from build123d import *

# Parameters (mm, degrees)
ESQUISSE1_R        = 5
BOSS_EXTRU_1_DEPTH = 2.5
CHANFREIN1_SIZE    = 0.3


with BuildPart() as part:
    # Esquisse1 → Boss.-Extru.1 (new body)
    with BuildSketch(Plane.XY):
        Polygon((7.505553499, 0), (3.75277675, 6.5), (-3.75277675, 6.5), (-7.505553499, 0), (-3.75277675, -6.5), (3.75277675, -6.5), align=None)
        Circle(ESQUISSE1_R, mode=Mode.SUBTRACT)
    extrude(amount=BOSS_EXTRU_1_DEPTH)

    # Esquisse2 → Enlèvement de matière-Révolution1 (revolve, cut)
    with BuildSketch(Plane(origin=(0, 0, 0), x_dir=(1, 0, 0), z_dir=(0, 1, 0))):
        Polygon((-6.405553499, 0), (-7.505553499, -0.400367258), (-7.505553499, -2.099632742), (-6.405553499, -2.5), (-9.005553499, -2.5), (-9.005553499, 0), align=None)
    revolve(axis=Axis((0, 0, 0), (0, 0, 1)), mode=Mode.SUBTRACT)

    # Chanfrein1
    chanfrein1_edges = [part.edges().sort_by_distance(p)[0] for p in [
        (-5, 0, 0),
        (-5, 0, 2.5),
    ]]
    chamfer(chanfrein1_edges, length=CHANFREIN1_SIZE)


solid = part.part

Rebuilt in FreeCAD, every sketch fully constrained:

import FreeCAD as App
import Part
import Sketcher
Q = App.Units.Quantity


def edges_at(feature, points):
    """Names of the edges that pass closest to the given points."""
    edges = feature.Shape.Edges
    near = lambda p: min(range(len(edges)), key=lambda i: edges[i].distToShape(Part.Vertex(*p))[0])
    return sorted({f"Edge{near(p) + 1}" for p in points})


def add_polygon(sketch, points):
    """Adds a closed chain of lines whose ends are joined by coincident constraints."""
    first, n = sketch.GeometryCount, len(points)
    for a, b in zip(points, points[1:] + points[:1]):
        sketch.addGeometry(Part.LineSegment(App.Vector(*a, 0), App.Vector(*b, 0)), False)
    for i in range(n):
        sketch.addConstraint(Sketcher.Constraint("Coincident", first + i, 2, first + (i + 1) % n, 1))

doc = App.newDocument("Part")
body = doc.addObject("PartDesign::Body", "Body")

# Sketch on XY plane
sketch1 = body.newObject("Sketcher::SketchObject", "Sketch")
sketch1.AttachmentSupport = (doc.getObject("XY_Plane"), [""])
sketch1.MapMode = "FlatFace"
add_polygon(sketch1, [(7.505553, 0), (3.752777, 6.5), (-3.752777, 6.5), (-7.505553, 0), (-3.752777, -6.5), (3.752777, -6.5)])  # lines 0-5
sketch1.addGeometry(Part.Circle(App.Vector(0, 0, 0), App.Vector(0, 0, 1), 5), False)  # 6
sketch1.addConstraint([
    Sketcher.Constraint("Horizontal", 1),
    Sketcher.Constraint("Horizontal", 4),
    Sketcher.Constraint("Coincident", 6, 3, -1, 1),
    Sketcher.Constraint("Symmetric", 0, 2, 3, 2, -1, 1),
    Sketcher.Constraint("Symmetric", 2, 2, 5, 2, -1, 1),
    Sketcher.Constraint("PointOnObject", 2, 2, -1),
    Sketcher.Constraint("Parallel", 2, 5),
    Sketcher.Constraint("Vertical", 1, 2, 3, 2),
    Sketcher.Constraint("Diameter", 6, Q("10 mm")),
    Sketcher.Constraint("Angle", 0, Q("120 deg")),
    Sketcher.Constraint("DistanceY", 3, 2, 1, 2, Q("13 mm")),
    Sketcher.Constraint("DistanceX", 1, 2, 1, 1, Q("7.505554 mm")),
])
pad1 = body.newObject("PartDesign::Pad", "Pad")
pad1.Profile = sketch1
pad1.Length = 2.5

# Sketch on XZ plane
sketch2 = body.newObject("Sketcher::SketchObject", "Sketch001")
sketch2.AttachmentSupport = (doc.getObject("XZ_Plane"), [""])
sketch2.MapMode = "FlatFace"
add_polygon(sketch2, [(-7.505553, 0.400367), (-6.405553, 0), (-9.005553, 0), (-9.005553, 2.5), (-6.405553, 2.5), (-7.505553, 2.099633)])  # lines 0-5
sketch2.addConstraint([
    Sketcher.Constraint("Horizontal", 1),
    Sketcher.Constraint("Vertical", 2),
    Sketcher.Constraint("Horizontal", 3),
    Sketcher.Constraint("Vertical", 5),
    Sketcher.Constraint("PointOnObject", 0, 2, -1),
    Sketcher.Constraint("Vertical", 0, 2, 3, 2),
    Sketcher.Constraint("Equal", 0, 4),
    Sketcher.Constraint("Angle", 0, Q("-20 deg")),
    Sketcher.Constraint("DistanceX", 1, 2, 1, 1, Q("2.6 mm")),
    Sketcher.Constraint("DistanceY", 2, 1, 2, 2, Q("2.5 mm")),
    Sketcher.Constraint("DistanceX", 4, 2, 3, 2, Q("1.1 mm")),
    Sketcher.Constraint("DistanceX", 0, 2, -1, 1, Q("6.405553 mm")),
])
groove = body.newObject("PartDesign::Groove", "Groove")
groove.Profile = sketch2
groove.ReferenceAxis = (sketch2, ["V_Axis"])
groove.Angle = 360
doc.recompute()

chamfer = body.newObject("PartDesign::Chamfer", "Chamfer")
chamfer.Base = (groove, edges_at(groove, [(-5, 0, 0), (-5, 0, 2.5)]))
chamfer.Size = 0.3

doc.recompute()
